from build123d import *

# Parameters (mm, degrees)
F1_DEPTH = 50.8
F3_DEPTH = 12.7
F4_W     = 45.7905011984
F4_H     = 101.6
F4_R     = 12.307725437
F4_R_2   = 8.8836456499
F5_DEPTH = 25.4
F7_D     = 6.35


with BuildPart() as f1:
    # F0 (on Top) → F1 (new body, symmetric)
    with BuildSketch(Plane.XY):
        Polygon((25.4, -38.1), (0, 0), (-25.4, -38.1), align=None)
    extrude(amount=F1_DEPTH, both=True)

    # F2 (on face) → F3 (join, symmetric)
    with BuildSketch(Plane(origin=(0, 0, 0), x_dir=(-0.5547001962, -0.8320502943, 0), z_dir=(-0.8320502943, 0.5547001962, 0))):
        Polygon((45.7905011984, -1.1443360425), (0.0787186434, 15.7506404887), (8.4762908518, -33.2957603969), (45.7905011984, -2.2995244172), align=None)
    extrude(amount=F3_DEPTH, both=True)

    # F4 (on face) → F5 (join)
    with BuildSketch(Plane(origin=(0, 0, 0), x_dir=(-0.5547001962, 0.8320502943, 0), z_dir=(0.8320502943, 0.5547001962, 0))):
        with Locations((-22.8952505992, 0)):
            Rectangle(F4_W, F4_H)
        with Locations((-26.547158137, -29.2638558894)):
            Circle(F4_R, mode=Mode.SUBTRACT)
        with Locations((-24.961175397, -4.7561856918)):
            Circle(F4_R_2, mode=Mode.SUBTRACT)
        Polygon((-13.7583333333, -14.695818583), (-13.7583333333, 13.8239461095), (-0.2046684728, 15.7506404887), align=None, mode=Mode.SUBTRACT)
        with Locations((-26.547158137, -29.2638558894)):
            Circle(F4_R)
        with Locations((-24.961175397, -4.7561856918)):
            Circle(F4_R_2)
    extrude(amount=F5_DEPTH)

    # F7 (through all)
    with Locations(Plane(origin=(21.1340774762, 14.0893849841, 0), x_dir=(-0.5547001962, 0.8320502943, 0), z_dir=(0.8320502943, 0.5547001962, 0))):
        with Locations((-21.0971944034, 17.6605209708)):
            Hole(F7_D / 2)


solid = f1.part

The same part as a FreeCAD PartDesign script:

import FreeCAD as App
import Part
import Sketcher

V = App.Vector
Q = App.Units.Quantity


def add_polygon(sketch, points):
    """Adds a closed chain of lines whose ends are joined by coincident constraints."""
    first, n = sketch.GeometryCount, len(points)
    for a, b in zip(points, points[1:] + points[:1]):
        sketch.addGeometry(Part.LineSegment(App.Vector(*a, 0), App.Vector(*b, 0)), False)
    for i in range(n):
        sketch.addConstraint(Sketcher.Constraint("Coincident", first + i, 2, first + (i + 1) % n, 1))

doc = App.newDocument("Part")
body = doc.addObject("PartDesign::Body", "Body")

sketch1 = body.newObject("Sketcher::SketchObject", "Sketch")
sketch1.AttachmentSupport = (doc.getObject("XY_Plane"), [""])
sketch1.MapMode = "FlatFace"
add_polygon(sketch1, [(25, -38), (0, 0), (-25, -38)])
sketch1.addConstraint([
    Sketcher.Constraint("Horizontal", 2),
    Sketcher.Constraint("Coincident", 0, 2, -1, 1),
    Sketcher.Constraint("Equal", 0, 1),
    Sketcher.Constraint("DistanceX", 2, 1, 2, 2, Q("2 in")),
    Sketcher.Constraint("DistanceY", 1, 2, -1, 1, Q("1.5 in")),
])
pad1 = body.newObject("PartDesign::Pad", "Pad")
pad1.Profile = sketch1
pad1.Length = Q("4 in")
pad1.Midplane = True

sketch2 = body.newObject("Sketcher::SketchObject", "Sketch001")
sketch2.Placement = App.Placement(V(0, 0, 0), App.Rotation(V(-0.554700196, -0.832050294, 0), V(0, 0, 0.999999999), V(-0.832050294, 0.554700196, 0), "ZXY"))
add_polygon(sketch2, [(45.8, -1.1), (0.1, 15.8), (8.5, -33.3), (45.8, -2.3)])
sketch2.addConstraint([
    Sketcher.Constraint("Vertical", 3),
    Sketcher.Constraint("DistanceY", 3, 1, 3, 2, 1.155188),
    Sketcher.Constraint("DistanceX", -1, 1, 2, 2, 45.790501),
    Sketcher.Constraint("DistanceY", 1, 2, 0, 2, 49.046401),
    Sketcher.Constraint("Distance", 1, 49.760111),
    Sketcher.Constraint("DistanceX", -1, 1, 0, 2, 0.078719),
    Sketcher.Constraint("DistanceY", -1, 1, 0, 2, 15.75064),
    Sketcher.Constraint("Distance", 0, 48.734047),
])
pad2 = body.newObject("PartDesign::Pad", "Pad001")
pad2.Profile = sketch2
pad2.Length = Q("1 in")
pad2.Midplane = True

sketch3 = body.newObject("Sketcher::SketchObject", "Sketch002")
sketch3.Placement = App.Placement(V(0, 0, 0), App.Rotation(V(-0.554700196, 0.832050294, 0), V(0, 0, 0.999999999), V(0.832050294, 0.554700196, 0), "ZXY"))
add_polygon(sketch3, [(-46, 51), (-46, -51), (0, -51), (0, 51)])
add_polygon(sketch3, [(0, 16), (-14, -15), (-14, 14)])
sketch3.addConstraint([
    Sketcher.Constraint("Vertical", 0),
    Sketcher.Constraint("Horizontal", 1),
    Sketcher.Constraint("Vertical", 2),
    Sketcher.Constraint("Horizontal", 3),
    Sketcher.Constraint("Vertical", 5),
    Sketcher.Constraint("Symmetric", 1, 2, 2, 2, -1, 1),
    Sketcher.Constraint("DistanceY", 0, 2, 0, 1, Q("4 in")),
    Sketcher.Constraint("DistanceX", 1, 1, 1, 2, 45.790501),
    Sketcher.Constraint("DistanceY", 5, 1, 5, 2, 28.519765),
    Sketcher.Constraint("DistanceY", 4, 2, -1, 1, 14.695819),
    Sketcher.Constraint("DistanceX", 6, 2, -1, 1, 0.204668),
    Sketcher.Constraint("DistanceY", -1, 1, 6, 2, 15.75064),
    Sketcher.Constraint("Distance", 4, 33.326997),
])
pad3 = body.newObject("PartDesign::Pad", "Pad002")
pad3.Profile = sketch3
pad3.Length = Q("1 in")

sketch4 = body.newObject("Sketcher::SketchObject", "Sketch003")
sketch4.Placement = App.Placement(V(21.134077, 14.089385, 0), App.Rotation(V(-0.554700196, 0.832050294, 0), V(0, 0, 0.999999999), V(0.832050294, 0.554700196, 0), "ZXY"))
sketch4.addGeometry(Part.Circle(V(-21.1, 17.7, 0), V(0, 0, 1), 3.2), False)
sketch4.addConstraint([
    Sketcher.Constraint("Diameter", 0, Q("0.25 in")),
    Sketcher.Constraint("DistanceY", -1, 1, 0, 3, 17.660521),
    Sketcher.Constraint("DistanceX", 0, 3, -1, 1, 21.097194),
])
doc.recompute()
hole = body.newObject("PartDesign::Hole", "Hole")
hole.Profile = sketch4
hole.ThreadType = "None"
hole.Diameter = Q("0.25 in")
hole.DepthType = "ThroughAll"

doc.recompute()
